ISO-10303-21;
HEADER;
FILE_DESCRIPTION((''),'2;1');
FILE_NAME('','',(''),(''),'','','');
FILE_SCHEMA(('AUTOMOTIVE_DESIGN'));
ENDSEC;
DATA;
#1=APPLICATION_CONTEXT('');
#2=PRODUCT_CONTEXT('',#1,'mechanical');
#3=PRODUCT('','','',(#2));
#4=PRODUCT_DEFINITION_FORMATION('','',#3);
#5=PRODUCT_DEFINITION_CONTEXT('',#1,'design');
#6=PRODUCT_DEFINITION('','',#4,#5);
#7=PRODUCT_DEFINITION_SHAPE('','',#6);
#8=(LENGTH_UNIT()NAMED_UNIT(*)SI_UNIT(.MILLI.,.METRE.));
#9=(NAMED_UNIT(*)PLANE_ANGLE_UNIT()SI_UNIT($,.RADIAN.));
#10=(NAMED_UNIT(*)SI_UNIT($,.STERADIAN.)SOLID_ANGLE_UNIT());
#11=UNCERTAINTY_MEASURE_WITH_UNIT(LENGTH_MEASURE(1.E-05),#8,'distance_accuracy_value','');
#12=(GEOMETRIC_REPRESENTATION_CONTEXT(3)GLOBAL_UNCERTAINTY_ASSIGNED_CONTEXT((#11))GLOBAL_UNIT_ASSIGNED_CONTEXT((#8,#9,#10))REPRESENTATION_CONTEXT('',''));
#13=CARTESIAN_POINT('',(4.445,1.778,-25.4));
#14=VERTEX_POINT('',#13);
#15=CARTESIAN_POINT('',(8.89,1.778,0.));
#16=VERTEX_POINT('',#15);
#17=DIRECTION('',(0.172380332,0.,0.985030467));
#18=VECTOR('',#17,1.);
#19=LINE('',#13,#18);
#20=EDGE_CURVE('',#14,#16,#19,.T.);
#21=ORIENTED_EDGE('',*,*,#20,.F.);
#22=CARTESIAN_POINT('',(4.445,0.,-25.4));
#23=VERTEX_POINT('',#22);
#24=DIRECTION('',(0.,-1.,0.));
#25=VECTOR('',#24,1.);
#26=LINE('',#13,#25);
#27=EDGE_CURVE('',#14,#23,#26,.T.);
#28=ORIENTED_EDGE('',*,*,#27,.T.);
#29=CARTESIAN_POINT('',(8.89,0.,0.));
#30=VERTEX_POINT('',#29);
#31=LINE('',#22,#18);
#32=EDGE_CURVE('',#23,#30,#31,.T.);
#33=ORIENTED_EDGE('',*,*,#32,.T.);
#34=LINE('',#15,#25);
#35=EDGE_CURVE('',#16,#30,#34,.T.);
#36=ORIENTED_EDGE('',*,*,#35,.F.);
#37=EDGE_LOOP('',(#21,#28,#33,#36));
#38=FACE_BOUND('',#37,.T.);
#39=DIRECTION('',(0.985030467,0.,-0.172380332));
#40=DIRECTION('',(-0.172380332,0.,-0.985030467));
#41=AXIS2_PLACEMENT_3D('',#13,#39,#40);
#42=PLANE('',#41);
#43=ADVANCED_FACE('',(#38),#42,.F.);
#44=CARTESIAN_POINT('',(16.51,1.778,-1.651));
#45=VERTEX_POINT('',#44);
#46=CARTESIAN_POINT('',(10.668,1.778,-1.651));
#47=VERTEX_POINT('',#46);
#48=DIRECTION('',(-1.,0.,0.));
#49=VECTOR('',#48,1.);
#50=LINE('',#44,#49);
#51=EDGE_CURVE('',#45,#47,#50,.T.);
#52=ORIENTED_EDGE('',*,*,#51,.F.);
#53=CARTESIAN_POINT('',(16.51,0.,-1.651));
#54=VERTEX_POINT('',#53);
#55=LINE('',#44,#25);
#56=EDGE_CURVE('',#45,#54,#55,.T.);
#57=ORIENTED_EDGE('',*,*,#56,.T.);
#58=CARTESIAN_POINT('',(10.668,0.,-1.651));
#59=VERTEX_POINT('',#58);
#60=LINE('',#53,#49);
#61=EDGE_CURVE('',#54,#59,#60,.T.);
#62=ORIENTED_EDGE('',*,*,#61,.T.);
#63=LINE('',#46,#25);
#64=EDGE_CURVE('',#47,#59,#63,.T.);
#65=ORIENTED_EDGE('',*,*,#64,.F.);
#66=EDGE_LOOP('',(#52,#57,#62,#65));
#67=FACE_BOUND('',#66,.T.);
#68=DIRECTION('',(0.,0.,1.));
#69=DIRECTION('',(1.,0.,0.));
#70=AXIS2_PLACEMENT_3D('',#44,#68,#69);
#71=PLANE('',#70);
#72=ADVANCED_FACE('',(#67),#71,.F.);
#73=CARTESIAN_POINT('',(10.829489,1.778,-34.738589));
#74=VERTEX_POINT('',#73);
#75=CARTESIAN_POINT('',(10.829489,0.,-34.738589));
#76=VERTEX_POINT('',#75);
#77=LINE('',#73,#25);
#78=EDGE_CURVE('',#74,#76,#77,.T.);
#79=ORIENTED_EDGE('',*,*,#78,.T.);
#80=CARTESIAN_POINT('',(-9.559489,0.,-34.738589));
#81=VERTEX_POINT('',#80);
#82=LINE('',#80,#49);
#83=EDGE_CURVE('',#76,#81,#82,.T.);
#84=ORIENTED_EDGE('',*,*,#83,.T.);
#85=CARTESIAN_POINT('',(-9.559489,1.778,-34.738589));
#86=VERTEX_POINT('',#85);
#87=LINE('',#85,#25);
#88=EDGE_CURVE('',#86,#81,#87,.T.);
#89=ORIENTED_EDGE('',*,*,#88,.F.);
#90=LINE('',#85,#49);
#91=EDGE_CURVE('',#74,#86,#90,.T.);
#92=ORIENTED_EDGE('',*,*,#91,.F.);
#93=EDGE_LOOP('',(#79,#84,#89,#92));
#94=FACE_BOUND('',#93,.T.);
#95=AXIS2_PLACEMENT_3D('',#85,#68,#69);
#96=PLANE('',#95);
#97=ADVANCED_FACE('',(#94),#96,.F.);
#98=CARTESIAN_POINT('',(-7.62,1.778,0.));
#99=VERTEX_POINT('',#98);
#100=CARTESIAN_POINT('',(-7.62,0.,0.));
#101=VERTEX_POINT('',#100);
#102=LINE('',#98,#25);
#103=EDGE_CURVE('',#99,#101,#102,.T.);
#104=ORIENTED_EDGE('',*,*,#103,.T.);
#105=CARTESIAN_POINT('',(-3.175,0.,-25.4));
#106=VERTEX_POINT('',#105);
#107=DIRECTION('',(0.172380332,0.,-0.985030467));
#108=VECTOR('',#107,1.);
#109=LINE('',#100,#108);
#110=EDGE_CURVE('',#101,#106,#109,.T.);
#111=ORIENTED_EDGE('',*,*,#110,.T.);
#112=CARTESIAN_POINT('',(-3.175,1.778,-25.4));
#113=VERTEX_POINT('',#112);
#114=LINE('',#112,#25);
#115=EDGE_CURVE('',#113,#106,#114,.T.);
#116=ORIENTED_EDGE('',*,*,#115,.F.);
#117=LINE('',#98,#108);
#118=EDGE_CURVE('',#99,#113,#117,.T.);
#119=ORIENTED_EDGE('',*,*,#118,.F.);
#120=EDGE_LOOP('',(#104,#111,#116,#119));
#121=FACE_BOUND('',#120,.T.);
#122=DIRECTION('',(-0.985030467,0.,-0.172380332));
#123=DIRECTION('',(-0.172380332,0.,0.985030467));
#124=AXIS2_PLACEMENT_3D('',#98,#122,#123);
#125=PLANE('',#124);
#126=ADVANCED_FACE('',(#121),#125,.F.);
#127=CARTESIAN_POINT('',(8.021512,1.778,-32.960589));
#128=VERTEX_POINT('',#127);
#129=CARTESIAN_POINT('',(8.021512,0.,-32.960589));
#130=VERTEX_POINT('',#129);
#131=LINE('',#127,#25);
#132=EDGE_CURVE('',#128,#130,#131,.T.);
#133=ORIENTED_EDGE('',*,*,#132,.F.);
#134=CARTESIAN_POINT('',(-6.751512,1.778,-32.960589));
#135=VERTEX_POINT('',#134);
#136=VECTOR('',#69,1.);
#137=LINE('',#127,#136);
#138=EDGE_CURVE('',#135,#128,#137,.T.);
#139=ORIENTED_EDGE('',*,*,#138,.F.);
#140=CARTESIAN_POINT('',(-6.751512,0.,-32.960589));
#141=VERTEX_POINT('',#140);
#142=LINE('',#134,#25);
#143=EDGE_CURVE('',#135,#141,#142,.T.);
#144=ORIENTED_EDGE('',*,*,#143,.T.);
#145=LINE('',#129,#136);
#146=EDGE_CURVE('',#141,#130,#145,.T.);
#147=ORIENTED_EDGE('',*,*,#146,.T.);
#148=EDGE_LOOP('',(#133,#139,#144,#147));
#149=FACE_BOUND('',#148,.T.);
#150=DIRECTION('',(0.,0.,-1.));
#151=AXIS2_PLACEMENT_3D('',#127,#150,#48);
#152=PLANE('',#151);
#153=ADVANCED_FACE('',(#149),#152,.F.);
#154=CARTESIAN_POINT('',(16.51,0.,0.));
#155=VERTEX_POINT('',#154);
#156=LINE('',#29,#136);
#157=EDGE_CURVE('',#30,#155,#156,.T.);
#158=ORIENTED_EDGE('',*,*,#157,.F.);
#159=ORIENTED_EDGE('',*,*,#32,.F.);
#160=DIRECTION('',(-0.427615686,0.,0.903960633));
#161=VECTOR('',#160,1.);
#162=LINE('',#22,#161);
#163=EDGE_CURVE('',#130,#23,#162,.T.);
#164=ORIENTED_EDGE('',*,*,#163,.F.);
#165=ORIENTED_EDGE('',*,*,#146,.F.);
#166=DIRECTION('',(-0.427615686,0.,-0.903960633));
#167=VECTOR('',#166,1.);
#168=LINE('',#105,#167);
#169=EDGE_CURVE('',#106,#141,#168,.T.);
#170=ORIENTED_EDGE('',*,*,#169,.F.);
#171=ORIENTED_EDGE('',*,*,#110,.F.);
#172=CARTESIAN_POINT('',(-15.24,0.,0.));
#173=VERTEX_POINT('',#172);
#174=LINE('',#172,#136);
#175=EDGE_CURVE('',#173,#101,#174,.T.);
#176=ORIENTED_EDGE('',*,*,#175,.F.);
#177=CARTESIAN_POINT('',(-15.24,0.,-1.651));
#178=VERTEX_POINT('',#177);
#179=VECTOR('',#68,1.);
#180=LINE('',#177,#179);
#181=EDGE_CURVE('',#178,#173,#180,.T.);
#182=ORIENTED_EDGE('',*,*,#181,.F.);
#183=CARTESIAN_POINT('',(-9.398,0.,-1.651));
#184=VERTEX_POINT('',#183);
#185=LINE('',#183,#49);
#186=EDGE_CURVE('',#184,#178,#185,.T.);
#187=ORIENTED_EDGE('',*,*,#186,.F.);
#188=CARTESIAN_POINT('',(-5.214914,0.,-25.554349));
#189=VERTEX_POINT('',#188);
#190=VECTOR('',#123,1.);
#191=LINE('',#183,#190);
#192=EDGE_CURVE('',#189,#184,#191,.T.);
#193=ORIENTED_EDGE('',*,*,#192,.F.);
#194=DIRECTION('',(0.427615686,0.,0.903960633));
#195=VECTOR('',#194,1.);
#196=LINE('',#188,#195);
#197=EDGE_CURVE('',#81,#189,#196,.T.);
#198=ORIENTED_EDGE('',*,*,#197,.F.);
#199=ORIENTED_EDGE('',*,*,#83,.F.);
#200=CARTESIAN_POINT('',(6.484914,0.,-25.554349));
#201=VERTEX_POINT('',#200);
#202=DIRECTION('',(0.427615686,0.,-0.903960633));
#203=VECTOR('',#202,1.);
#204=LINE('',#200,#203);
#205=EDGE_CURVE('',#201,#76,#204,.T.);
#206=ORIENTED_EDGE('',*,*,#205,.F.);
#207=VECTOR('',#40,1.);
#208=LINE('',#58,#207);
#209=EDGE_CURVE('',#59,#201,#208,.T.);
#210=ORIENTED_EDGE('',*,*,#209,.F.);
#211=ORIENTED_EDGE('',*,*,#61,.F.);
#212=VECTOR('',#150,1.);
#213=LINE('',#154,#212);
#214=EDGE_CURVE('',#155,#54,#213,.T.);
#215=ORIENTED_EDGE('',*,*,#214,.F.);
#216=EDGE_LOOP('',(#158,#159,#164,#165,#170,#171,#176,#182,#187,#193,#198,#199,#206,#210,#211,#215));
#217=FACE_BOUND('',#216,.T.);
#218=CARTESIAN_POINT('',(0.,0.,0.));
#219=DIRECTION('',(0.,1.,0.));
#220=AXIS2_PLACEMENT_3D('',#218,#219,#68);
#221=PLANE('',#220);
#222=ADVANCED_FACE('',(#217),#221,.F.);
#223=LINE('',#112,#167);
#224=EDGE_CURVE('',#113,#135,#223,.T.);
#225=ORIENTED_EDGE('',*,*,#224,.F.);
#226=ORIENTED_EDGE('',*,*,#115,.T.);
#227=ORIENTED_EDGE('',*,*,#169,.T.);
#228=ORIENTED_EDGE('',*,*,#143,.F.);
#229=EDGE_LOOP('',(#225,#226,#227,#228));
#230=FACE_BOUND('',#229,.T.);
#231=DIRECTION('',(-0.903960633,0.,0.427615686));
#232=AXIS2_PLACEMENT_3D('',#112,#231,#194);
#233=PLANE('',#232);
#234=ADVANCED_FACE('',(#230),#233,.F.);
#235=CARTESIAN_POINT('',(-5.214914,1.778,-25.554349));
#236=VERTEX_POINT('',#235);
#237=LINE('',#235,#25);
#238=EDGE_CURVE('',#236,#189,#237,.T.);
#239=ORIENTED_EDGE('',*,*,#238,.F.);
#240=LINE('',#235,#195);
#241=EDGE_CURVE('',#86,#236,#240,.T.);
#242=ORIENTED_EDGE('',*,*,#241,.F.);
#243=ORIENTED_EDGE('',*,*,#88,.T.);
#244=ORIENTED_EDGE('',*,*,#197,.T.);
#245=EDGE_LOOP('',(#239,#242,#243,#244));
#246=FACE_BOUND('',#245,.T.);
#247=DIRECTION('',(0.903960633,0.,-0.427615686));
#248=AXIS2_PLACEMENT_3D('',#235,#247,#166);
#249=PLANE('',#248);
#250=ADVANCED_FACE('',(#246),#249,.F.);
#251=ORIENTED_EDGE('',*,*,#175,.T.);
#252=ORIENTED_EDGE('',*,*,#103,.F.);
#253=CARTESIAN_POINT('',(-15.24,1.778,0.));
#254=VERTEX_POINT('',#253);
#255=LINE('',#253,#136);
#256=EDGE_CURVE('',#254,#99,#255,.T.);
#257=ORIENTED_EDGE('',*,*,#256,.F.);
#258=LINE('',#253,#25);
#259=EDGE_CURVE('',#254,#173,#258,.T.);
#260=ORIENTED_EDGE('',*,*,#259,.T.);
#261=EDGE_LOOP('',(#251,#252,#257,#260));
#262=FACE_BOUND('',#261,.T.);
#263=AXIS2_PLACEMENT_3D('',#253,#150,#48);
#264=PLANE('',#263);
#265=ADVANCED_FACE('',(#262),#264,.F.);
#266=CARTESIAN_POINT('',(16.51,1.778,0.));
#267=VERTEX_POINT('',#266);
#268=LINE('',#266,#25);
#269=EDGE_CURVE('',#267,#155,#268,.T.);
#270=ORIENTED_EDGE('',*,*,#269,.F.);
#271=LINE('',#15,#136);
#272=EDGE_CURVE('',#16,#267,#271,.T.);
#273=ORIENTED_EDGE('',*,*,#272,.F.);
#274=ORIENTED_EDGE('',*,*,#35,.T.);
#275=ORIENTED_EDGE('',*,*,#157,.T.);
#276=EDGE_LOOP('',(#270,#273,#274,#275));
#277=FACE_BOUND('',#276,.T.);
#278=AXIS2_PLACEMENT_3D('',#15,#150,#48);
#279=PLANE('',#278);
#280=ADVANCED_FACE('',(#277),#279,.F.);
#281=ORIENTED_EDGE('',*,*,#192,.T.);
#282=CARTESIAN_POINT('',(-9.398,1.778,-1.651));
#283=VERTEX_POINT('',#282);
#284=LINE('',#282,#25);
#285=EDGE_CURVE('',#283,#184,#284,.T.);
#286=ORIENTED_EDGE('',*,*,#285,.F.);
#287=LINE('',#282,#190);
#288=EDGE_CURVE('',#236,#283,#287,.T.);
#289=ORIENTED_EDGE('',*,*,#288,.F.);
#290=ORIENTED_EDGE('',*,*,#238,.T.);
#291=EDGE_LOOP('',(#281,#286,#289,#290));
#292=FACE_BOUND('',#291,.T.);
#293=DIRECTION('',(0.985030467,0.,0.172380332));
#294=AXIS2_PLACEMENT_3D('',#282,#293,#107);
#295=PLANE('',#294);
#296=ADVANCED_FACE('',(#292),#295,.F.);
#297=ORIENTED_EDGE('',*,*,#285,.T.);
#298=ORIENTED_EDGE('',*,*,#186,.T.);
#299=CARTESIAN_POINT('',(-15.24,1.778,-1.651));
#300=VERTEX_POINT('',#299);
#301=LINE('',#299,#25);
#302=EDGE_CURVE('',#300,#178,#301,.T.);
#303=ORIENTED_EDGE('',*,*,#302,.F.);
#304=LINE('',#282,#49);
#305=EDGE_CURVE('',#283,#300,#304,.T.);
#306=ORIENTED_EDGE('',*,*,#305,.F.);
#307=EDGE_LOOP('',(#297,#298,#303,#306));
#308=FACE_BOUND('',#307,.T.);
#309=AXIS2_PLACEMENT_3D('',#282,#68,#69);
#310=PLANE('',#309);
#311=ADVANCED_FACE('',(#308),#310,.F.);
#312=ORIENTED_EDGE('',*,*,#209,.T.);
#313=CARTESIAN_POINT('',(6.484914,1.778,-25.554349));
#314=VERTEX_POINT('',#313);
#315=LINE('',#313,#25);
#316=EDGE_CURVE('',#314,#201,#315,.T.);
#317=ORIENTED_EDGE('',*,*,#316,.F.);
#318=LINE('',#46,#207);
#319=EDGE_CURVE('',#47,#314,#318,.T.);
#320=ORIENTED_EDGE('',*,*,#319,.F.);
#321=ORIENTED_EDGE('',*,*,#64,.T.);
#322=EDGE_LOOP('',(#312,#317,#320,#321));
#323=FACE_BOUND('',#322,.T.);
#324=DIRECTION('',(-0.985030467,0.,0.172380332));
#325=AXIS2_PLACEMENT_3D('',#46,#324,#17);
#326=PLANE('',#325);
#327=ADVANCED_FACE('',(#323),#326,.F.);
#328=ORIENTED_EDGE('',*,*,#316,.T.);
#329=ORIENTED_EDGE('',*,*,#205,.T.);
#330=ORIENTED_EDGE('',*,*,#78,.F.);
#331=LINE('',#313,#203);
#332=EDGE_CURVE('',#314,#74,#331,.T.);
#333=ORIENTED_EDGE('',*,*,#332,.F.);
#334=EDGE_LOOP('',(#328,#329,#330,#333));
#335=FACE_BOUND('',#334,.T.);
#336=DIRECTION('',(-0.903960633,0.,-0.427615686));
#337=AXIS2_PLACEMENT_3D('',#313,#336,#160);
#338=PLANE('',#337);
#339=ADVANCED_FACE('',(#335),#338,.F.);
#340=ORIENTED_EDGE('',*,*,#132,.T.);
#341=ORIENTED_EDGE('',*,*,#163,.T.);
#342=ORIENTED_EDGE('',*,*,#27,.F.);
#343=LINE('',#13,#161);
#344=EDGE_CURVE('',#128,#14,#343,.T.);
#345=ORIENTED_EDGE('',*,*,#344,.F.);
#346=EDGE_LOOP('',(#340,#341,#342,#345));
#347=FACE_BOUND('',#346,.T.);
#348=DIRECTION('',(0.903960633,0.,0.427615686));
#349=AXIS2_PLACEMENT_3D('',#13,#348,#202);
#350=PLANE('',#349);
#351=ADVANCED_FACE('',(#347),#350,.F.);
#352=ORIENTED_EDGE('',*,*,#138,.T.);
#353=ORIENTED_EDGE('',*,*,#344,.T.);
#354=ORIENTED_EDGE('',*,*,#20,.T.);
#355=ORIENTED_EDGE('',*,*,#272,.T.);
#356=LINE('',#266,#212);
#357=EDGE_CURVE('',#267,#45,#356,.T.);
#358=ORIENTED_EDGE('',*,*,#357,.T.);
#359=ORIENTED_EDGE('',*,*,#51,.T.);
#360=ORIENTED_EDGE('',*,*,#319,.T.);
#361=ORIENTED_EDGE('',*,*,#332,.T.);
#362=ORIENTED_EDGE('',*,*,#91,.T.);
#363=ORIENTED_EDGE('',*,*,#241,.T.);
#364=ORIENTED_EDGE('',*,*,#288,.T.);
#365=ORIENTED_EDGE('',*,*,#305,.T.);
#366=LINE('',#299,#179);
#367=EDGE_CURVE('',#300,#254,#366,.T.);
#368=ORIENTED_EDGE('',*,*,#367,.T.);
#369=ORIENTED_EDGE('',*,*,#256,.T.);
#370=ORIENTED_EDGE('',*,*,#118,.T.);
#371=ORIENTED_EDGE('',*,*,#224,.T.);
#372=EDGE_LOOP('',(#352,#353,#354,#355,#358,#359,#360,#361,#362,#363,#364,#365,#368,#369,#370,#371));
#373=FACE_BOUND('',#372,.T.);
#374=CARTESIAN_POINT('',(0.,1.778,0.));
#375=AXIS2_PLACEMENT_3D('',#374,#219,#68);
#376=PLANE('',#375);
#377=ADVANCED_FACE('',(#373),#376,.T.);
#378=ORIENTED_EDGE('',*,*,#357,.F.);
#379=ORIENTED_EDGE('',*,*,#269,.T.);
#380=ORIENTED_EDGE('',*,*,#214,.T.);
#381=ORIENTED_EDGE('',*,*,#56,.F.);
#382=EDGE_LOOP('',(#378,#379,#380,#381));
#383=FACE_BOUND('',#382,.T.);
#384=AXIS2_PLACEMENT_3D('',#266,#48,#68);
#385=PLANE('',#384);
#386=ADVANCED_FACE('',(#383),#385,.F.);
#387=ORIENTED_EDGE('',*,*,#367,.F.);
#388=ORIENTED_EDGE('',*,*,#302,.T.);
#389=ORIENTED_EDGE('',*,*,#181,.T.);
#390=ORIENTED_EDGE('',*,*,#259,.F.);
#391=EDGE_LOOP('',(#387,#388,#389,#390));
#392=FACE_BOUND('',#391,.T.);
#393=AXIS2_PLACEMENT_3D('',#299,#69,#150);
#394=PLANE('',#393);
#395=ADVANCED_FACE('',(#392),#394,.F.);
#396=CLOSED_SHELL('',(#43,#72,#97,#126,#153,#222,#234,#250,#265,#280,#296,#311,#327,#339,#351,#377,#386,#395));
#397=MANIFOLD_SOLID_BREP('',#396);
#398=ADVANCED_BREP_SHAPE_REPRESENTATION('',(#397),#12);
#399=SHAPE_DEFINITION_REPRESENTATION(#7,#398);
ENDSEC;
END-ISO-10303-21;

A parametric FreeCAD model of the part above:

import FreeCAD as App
import Part
import Sketcher
Q = App.Units.Quantity

doc = App.newDocument("Part")
body = doc.addObject("PartDesign::Body", "Body")

sketch1 = body.newObject("Sketcher::SketchObject", "Sketch")
sketch1.AttachmentSupport = (doc.getObject("XZ_Plane"), [""])
sketch1.MapMode = "FlatFace"
sketch1.addGeometry(Part.LineSegment(App.Vector(-15.2, 0, 0), App.Vector(-7.6, 0, 0)), False)
sketch1.addGeometry(Part.LineSegment(App.Vector(-7.6, 0, 0), App.Vector(-3.2, -25.4, 0)), False)
sketch1.addGeometry(Part.LineSegment(App.Vector(-3.2, -25.4, 0), App.Vector(-6.8, -33, 0)), False)
sketch1.addGeometry(Part.LineSegment(App.Vector(-6.8, -33, 0), App.Vector(8, -33, 0)), False)
sketch1.addGeometry(Part.LineSegment(App.Vector(8, -33, 0), App.Vector(4.4, -25.4, 0)), False)
sketch1.addGeometry(Part.LineSegment(App.Vector(4.4, -25.4, 0), App.Vector(8.9, 0, 0)), False)
sketch1.addGeometry(Part.LineSegment(App.Vector(8.9, 0, 0), App.Vector(16.5, 0, 0)), False)
sketch1.addGeometry(Part.LineSegment(App.Vector(16.5, 0, 0), App.Vector(16.5, -1.7, 0)), False)
sketch1.addGeometry(Part.LineSegment(App.Vector(16.5, -1.7, 0), App.Vector(10.7, -1.7, 0)), False)
sketch1.addGeometry(Part.LineSegment(App.Vector(10.7, -1.7, 0), App.Vector(6.5, -25.6, 0)), False)
sketch1.addGeometry(Part.LineSegment(App.Vector(6.5, -25.6, 0), App.Vector(10.8, -34.7, 0)), False)
sketch1.addGeometry(Part.LineSegment(App.Vector(10.8, -34.7, 0), App.Vector(-9.6, -34.7, 0)), False)
sketch1.addGeometry(Part.LineSegment(App.Vector(-9.6, -34.7, 0), App.Vector(-5.2, -25.6, 0)), False)
sketch1.addGeometry(Part.LineSegment(App.Vector(-5.2, -25.6, 0), App.Vector(-9.4, -1.7, 0)), False)
sketch1.addGeometry(Part.LineSegment(App.Vector(-9.4, -1.7, 0), App.Vector(-15.2, -1.7, 0)), False)
sketch1.addGeometry(Part.LineSegment(App.Vector(-15.2, -1.7, 0), App.Vector(-15.2, 0, 0)), False)
sketch1.addConstraint(Sketcher.Constraint("Coincident", 0, 2, 1, 1))
sketch1.addConstraint(Sketcher.Constraint("Coincident", 1, 2, 2, 1))
sketch1.addConstraint(Sketcher.Constraint("Coincident", 2, 2, 3, 1))
sketch1.addConstraint(Sketcher.Constraint("Coincident", 3, 2, 4, 1))
sketch1.addConstraint(Sketcher.Constraint("Coincident", 4, 2, 5, 1))
sketch1.addConstraint(Sketcher.Constraint("Coincident", 5, 2, 6, 1))
sketch1.addConstraint(Sketcher.Constraint("Coincident", 6, 2, 7, 1))
sketch1.addConstraint(Sketcher.Constraint("Coincident", 7, 2, 8, 1))
sketch1.addConstraint(Sketcher.Constraint("Coincident", 8, 2, 9, 1))
sketch1.addConstraint(Sketcher.Constraint("Coincident", 9, 2, 10, 1))
sketch1.addConstraint(Sketcher.Constraint("Coincident", 10, 2, 11, 1))
sketch1.addConstraint(Sketcher.Constraint("Coincident", 11, 2, 12, 1))
sketch1.addConstraint(Sketcher.Constraint("Coincident", 12, 2, 13, 1))
sketch1.addConstraint(Sketcher.Constraint("Coincident", 13, 2, 14, 1))
sketch1.addConstraint(Sketcher.Constraint("Coincident", 14, 2, 15, 1))
sketch1.addConstraint(Sketcher.Constraint("Coincident", 15, 2, 0, 1))
sketch1.addConstraint(Sketcher.Constraint("Horizontal", 0))
sketch1.addConstraint(Sketcher.Constraint("Horizontal", 3))
sketch1.addConstraint(Sketcher.Constraint("Horizontal", 6))
sketch1.addConstraint(Sketcher.Constraint("Vertical", 7))
sketch1.addConstraint(Sketcher.Constraint("Horizontal", 8))
sketch1.addConstraint(Sketcher.Constraint("Horizontal", 11))
sketch1.addConstraint(Sketcher.Constraint("Horizontal", 14))
sketch1.addConstraint(Sketcher.Constraint("Vertical", 15))
sketch1.addConstraint(Sketcher.Constraint("PointOnObject", 0, 2, -1))
sketch1.addConstraint(Sketcher.Constraint("PointOnObject", 5, 2, -1))
sketch1.addConstraint(Sketcher.Constraint("Parallel", 5, 9))
sketch1.addConstraint(Sketcher.Constraint("Parallel", 4, 10))
sketch1.addConstraint(Sketcher.Constraint("Parallel", 2, 12))
sketch1.addConstraint(Sketcher.Constraint("Parallel", 1, 13))
sketch1.addConstraint(Sketcher.Constraint("Horizontal", 1, 2, 4, 2))
sketch1.addConstraint(Sketcher.Constraint("Horizontal", 9, 2, 12, 2))
sketch1.addConstraint(Sketcher.Constraint("Horizontal", 8, 2, 13, 2))
sketch1.addConstraint(Sketcher.Constraint("Equal", 0, 6))
sketch1.addConstraint(Sketcher.Constraint("Equal", 8, 14))
sketch1.addConstraint(Sketcher.Constraint("Equal", 2, 4))
sketch1.addConstraint(Sketcher.Constraint("Equal", 1, 5))
sketch1.addConstraint(Sketcher.Constraint("DistanceX", 0, 1, 0, 2, Q("0.3 in")))
sketch1.addConstraint(Sketcher.Constraint("DistanceY", 1, 2, -1, 1, Q("1 in")))
sketch1.addConstraint(Sketcher.Constraint("Distance", 10, Q("0.4 in")))
sketch1.addConstraint(Sketcher.Constraint("DistanceX", 8, 2, 8, 1, Q("0.23 in")))
sketch1.addConstraint(Sketcher.Constraint("DistanceX", 0, 2, -1, 1, Q("0.3 in")))
sketch1.addConstraint(Sketcher.Constraint("DistanceX", 1, 2, 4, 2, Q("0.3 in")))
sketch1.addConstraint(Sketcher.Constraint("DistanceY", 7, 2, 7, 1, Q("0.065 in")))
sketch1.addConstraint(Sketcher.Constraint("DistanceX", -1, 1, 5, 2, Q("0.35 in")))
sketch1.addConstraint(Sketcher.Constraint("DistanceY", 10, 2, 3, 2, Q("0.07 in")))
sketch1.addConstraint(Sketcher.Constraint("DistanceX", 11, 2, 11, 1, 20.388979))
sketch1.addConstraint(Sketcher.Constraint("DistanceX", 9, 2, 3, 2, 1.536598))
pad1 = body.newObject("PartDesign::Pad", "Pad")
pad1.Profile = sketch1
pad1.Length = Q("0.07 in")
pad1.Reversed = True

doc.recompute()
